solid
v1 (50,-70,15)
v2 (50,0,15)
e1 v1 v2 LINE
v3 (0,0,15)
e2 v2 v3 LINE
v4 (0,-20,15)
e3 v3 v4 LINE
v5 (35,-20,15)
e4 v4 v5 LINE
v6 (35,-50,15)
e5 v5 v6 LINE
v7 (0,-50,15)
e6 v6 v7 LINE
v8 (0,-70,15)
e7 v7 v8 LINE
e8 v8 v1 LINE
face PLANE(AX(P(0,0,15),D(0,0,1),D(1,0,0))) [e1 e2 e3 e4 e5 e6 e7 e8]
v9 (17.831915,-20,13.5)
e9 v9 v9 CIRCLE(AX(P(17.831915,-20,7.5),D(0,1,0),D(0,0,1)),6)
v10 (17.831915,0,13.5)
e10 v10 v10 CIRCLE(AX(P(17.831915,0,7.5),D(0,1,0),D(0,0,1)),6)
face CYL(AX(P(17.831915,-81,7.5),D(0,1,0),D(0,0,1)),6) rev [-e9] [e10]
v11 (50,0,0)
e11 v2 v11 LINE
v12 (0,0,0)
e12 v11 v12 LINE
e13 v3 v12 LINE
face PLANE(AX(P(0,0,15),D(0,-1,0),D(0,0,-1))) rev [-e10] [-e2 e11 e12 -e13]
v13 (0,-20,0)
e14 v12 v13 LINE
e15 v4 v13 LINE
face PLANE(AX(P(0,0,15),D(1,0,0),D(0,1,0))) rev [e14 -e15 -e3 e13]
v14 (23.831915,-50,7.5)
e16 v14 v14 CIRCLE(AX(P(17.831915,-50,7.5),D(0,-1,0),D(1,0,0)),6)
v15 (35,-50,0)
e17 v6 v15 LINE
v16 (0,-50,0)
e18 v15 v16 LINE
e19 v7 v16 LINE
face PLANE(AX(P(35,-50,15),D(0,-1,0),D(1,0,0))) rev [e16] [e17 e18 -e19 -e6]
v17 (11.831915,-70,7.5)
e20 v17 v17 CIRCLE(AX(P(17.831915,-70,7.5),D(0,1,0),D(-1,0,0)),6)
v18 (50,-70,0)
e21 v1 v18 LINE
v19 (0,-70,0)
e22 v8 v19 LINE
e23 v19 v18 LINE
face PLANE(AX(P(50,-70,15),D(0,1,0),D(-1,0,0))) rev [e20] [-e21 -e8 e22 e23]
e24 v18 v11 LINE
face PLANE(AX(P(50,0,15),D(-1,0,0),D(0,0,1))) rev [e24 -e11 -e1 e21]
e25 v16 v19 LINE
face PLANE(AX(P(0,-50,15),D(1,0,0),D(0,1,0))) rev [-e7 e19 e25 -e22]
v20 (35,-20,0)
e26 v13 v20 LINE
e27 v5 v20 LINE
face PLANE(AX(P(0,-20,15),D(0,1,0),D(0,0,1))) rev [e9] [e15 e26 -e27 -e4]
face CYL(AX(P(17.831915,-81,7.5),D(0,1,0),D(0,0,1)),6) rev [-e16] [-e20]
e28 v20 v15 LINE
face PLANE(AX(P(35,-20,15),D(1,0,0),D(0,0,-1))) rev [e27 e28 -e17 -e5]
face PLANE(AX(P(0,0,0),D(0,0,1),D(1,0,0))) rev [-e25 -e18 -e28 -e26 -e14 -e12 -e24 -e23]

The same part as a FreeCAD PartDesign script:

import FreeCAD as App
import Part
import Sketcher

V = App.Vector


def add_polygon(sketch, points):
    """Adds a closed chain of lines whose ends are joined by coincident constraints."""
    first, n = sketch.GeometryCount, len(points)
    for a, b in zip(points, points[1:] + points[:1]):
        sketch.addGeometry(Part.LineSegment(App.Vector(*a, 0), App.Vector(*b, 0)), False)
    for i in range(n):
        sketch.addConstraint(Sketcher.Constraint("Coincident", first + i, 2, first + (i + 1) % n, 1))

doc = App.newDocument("Part")
body = doc.addObject("PartDesign::Body", "Body")

# Sketch on XY plane
sketch1 = doc.addObject("Sketcher::SketchObject", "Sketch")
body.addObject(sketch1)
sketch1.AttachmentSupport = (doc.XY_Plane, [""])
sketch1.MapMode = "FlatFace"
add_polygon(sketch1, [(50, 0), (0, 0), (0, -20), (35, -20), (35, -50), (0, -50), (0, -70), (50, -70)])  # lines 0-7
sketch1.addConstraint(Sketcher.Constraint("Horizontal", 0))
sketch1.addConstraint(Sketcher.Constraint("Vertical", 1))
sketch1.addConstraint(Sketcher.Constraint("Horizontal", 2))
sketch1.addConstraint(Sketcher.Constraint("Vertical", 3))
sketch1.addConstraint(Sketcher.Constraint("Horizontal", 4))
sketch1.addConstraint(Sketcher.Constraint("Vertical", 5))
sketch1.addConstraint(Sketcher.Constraint("Horizontal", 6))
sketch1.addConstraint(Sketcher.Constraint("Vertical", 7))
sketch1.addConstraint(Sketcher.Constraint("Coincident", 0, 2, -1, 1))
sketch1.addConstraint(Sketcher.Constraint("PointOnObject", 4, 2, -2))
sketch1.addConstraint(Sketcher.Constraint("Equal", 1, 5))
sketch1.addConstraint(Sketcher.Constraint("DistanceX", 0, 2, 0, 1, 50.0))
sketch1.addConstraint(Sketcher.Constraint("DistanceX", 2, 1, 2, 2, 35.0))
sketch1.addConstraint(Sketcher.Constraint("DistanceY", 1, 2, 1, 1, 20.0))
sketch1.addConstraint(Sketcher.Constraint("DistanceY", 3, 2, 3, 1, 30.0))
pad1 = doc.addObject("PartDesign::Pad", "Pad")
body.addObject(pad1)
pad1.Profile = sketch1
pad1.Length = 15

# Sketch on XZ plane
sketch2 = doc.addObject("Sketcher::SketchObject", "Sketch001")
body.addObject(sketch2)
sketch2.AttachmentSupport = (doc.XZ_Plane, [""])
sketch2.MapMode = "FlatFace"
sketch2.addGeometry(Part.Circle(V(17.831915, 7.5, 0), V(0, 0, 1), 6), False)
sketch2.addConstraint(Sketcher.Constraint("Diameter", 0, 12.0))
sketch2.addConstraint(Sketcher.Constraint("DistanceY", -1, 1, 0, 3, 7.5))
sketch2.addConstraint(Sketcher.Constraint("DistanceX", -1, 1, 0, 3, 17.831915))
pocket1 = doc.addObject("PartDesign::Pocket", "Pocket")
body.addObject(pocket1)
pocket1.Profile = sketch2
pocket1.Length = 81
pocket1.Reversed = True

doc.recompute()
